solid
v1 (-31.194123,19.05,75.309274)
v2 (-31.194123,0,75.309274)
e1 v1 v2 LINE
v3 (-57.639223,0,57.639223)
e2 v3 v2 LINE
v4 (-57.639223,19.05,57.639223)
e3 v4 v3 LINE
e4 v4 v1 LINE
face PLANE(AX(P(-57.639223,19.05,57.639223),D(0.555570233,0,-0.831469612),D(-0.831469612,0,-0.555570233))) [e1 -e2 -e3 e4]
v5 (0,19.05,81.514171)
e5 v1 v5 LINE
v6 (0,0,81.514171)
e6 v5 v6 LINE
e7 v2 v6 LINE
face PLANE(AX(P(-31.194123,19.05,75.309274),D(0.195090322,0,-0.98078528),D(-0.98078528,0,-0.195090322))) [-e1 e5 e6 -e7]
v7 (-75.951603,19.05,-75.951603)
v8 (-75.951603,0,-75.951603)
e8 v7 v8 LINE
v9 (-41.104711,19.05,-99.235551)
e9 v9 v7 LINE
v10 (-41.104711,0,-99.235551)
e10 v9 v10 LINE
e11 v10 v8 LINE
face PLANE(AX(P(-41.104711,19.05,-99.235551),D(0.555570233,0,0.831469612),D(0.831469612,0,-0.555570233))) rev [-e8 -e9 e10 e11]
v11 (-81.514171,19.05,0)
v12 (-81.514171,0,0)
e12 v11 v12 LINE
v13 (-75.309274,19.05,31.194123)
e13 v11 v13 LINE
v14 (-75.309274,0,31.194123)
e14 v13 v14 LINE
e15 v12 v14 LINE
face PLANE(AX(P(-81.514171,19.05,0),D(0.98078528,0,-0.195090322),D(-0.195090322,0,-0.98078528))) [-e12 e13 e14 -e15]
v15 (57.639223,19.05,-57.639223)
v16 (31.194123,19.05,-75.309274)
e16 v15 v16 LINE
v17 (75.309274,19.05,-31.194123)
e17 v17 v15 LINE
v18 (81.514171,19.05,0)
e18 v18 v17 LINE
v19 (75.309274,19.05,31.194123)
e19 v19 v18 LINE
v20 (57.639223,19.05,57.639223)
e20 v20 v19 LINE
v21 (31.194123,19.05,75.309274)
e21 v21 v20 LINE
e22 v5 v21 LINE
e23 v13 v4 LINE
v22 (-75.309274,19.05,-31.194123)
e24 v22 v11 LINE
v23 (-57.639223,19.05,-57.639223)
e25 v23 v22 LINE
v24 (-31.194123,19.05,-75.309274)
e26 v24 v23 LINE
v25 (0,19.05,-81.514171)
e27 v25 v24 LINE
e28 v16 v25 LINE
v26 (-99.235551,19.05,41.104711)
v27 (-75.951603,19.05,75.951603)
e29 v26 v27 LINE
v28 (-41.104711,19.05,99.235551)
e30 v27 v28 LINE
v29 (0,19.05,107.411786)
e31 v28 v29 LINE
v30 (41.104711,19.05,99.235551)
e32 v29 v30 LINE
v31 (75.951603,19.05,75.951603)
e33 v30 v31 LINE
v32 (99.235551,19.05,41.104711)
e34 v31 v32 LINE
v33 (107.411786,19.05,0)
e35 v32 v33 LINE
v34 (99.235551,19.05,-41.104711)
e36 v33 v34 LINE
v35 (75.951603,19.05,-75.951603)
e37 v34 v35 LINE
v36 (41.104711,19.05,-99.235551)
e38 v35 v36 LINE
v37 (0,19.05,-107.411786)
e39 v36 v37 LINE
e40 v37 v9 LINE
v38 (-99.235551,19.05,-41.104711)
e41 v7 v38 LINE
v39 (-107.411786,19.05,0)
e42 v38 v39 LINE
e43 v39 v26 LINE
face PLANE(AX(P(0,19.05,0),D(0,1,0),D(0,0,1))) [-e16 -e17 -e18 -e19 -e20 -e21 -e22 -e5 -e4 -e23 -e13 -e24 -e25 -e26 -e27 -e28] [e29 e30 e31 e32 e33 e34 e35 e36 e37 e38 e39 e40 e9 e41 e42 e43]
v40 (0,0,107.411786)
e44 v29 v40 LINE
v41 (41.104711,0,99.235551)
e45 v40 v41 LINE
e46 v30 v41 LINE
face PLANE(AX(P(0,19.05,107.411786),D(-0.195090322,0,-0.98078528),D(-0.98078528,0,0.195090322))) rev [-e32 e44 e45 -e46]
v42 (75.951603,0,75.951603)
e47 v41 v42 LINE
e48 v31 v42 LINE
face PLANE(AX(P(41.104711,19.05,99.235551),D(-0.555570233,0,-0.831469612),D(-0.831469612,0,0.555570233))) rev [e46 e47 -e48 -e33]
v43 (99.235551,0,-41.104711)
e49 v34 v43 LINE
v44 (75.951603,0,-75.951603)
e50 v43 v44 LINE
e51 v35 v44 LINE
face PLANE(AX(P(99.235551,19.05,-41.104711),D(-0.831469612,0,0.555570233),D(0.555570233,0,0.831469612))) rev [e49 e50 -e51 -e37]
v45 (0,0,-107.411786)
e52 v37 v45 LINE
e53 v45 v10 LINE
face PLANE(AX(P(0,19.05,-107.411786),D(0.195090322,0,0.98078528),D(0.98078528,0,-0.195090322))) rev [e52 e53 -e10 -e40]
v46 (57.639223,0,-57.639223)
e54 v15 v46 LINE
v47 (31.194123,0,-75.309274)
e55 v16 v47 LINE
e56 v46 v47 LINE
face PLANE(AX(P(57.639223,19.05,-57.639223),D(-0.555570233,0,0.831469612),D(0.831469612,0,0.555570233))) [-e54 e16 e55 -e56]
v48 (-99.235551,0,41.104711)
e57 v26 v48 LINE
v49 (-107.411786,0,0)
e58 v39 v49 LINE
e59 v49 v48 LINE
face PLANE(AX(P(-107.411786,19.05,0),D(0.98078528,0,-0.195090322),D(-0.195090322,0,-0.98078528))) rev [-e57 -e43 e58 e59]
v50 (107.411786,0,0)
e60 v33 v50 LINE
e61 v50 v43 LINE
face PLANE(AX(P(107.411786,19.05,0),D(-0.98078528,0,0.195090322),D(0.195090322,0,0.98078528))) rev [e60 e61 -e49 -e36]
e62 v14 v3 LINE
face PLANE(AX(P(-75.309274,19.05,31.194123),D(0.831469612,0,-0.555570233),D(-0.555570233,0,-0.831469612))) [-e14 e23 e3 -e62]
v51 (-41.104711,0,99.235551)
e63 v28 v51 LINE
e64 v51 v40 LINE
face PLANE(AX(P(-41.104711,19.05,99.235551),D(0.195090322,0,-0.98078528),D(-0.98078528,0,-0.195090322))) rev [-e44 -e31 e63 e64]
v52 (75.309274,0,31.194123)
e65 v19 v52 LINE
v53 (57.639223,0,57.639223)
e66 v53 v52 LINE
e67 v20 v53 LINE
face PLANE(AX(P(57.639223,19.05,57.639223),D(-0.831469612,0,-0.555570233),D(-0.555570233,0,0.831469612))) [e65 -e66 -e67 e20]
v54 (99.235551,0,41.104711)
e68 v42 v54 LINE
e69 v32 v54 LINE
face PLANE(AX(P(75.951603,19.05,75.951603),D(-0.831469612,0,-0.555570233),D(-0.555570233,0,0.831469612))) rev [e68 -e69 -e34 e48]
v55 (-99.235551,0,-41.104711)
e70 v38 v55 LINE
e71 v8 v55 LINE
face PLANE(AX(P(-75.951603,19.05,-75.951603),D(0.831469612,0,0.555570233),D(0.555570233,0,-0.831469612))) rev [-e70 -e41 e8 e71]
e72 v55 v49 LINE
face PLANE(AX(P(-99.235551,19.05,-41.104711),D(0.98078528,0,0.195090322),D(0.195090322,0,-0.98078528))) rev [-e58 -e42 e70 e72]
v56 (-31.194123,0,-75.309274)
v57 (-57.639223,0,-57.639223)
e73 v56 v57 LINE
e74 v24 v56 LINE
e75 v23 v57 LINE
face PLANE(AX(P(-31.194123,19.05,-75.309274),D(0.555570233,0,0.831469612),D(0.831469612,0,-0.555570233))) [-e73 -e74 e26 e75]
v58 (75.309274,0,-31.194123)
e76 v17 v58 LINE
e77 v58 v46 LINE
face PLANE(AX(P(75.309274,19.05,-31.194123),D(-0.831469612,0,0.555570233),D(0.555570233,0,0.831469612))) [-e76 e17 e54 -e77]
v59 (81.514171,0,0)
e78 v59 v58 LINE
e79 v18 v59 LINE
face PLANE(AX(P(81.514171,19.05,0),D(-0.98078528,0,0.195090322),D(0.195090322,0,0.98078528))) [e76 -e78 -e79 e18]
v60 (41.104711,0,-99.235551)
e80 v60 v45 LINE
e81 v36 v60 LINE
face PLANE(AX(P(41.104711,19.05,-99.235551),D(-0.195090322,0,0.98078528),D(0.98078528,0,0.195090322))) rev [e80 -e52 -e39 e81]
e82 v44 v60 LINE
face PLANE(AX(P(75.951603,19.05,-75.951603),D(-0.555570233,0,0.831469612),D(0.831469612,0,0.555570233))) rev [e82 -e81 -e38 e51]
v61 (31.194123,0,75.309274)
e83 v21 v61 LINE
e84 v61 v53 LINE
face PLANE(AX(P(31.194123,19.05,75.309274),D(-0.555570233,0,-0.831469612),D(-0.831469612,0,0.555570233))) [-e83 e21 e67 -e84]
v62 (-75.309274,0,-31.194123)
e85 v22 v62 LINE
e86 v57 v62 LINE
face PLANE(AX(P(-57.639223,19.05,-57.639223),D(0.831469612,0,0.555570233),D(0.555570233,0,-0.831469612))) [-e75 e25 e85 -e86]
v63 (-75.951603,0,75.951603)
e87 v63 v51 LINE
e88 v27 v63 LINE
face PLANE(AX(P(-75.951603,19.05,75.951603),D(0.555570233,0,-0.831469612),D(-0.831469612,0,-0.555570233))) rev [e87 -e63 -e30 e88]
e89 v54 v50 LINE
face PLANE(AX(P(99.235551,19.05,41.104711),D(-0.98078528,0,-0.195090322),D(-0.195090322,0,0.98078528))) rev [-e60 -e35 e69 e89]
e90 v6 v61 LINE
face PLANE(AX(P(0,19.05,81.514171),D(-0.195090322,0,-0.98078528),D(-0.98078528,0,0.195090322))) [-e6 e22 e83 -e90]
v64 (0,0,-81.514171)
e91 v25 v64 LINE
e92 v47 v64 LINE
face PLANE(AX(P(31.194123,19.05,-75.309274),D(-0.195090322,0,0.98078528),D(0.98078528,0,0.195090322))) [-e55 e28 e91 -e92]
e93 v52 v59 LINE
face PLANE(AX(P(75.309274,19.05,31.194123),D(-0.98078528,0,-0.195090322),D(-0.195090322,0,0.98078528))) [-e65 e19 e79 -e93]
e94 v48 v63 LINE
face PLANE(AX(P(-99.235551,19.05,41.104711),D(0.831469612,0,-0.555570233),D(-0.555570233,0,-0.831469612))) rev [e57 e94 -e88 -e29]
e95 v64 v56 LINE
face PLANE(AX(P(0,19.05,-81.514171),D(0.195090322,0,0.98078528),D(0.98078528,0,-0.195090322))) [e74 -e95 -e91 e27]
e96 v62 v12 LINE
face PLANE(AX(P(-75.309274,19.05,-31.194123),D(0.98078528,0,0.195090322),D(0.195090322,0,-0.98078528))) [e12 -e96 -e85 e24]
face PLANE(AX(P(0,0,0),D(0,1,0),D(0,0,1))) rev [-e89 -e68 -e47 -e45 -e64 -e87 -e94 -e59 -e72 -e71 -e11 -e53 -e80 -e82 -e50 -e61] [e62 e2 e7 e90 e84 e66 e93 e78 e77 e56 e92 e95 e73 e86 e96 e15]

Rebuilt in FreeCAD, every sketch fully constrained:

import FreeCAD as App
import Part
import Sketcher
Q = App.Units.Quantity


def add_polygon(sketch, points):
    """Adds a closed chain of lines whose ends are joined by coincident constraints."""
    first, n = sketch.GeometryCount, len(points)
    for a, b in zip(points, points[1:] + points[:1]):
        sketch.addGeometry(Part.LineSegment(App.Vector(*a, 0), App.Vector(*b, 0)), False)
    for i in range(n):
        sketch.addConstraint(Sketcher.Constraint("Coincident", first + i, 2, first + (i + 1) % n, 1))

doc = App.newDocument("Part")
body = doc.addObject("PartDesign::Body", "Body")

sketch1 = body.newObject("Sketcher::SketchObject", "Sketch")
sketch1.AttachmentSupport = (doc.getObject("XZ_Plane"), [""])
sketch1.MapMode = "FlatFace"
add_polygon(sketch1, [(107, 0), (99, -41), (76, -76), (41, -99), (0, -107), (-41, -99), (-76, -76), (-99, -41), (-107, 0), (-99, 41), (-76, 76), (-41, 99), (0, 107), (41, 99), (76, 76), (99, 41)])
add_polygon(sketch1, [(75, -31), (82, 0), (75, 31), (58, 58), (31, 75), (0, 82), (-31, 75), (-58, 58), (-75, 31), (-82, 0), (-75, -31), (-58, -58), (-31, -75), (0, -82), (31, -75), (58, -58)])
sketch1.addConstraint(Sketcher.Constraint("Symmetric", 0, 2, 8, 2, -1, 1))
sketch1.addConstraint(Sketcher.Constraint("Symmetric", 1, 2, 9, 2, -1, 1))
sketch1.addConstraint(Sketcher.Constraint("Symmetric", 2, 2, 10, 2, -1, 1))
sketch1.addConstraint(Sketcher.Constraint("Symmetric", 3, 2, 11, 2, -1, 1))
sketch1.addConstraint(Sketcher.Constraint("Symmetric", 4, 2, 12, 2, -1, 1))
sketch1.addConstraint(Sketcher.Constraint("Symmetric", 5, 2, 13, 2, -1, 1))
sketch1.addConstraint(Sketcher.Constraint("Symmetric", 6, 2, 14, 2, -1, 1))
sketch1.addConstraint(Sketcher.Constraint("Symmetric", 7, 2, 15, 2, -1, 1))
sketch1.addConstraint(Sketcher.Constraint("Symmetric", 16, 2, 24, 2, -1, 1))
sketch1.addConstraint(Sketcher.Constraint("Symmetric", 17, 2, 25, 2, -1, 1))
sketch1.addConstraint(Sketcher.Constraint("Symmetric", 18, 2, 26, 2, -1, 1))
sketch1.addConstraint(Sketcher.Constraint("Symmetric", 19, 2, 27, 2, -1, 1))
sketch1.addConstraint(Sketcher.Constraint("Symmetric", 20, 2, 28, 2, -1, 1))
sketch1.addConstraint(Sketcher.Constraint("Symmetric", 21, 2, 29, 2, -1, 1))
sketch1.addConstraint(Sketcher.Constraint("Symmetric", 22, 2, 30, 2, -1, 1))
sketch1.addConstraint(Sketcher.Constraint("Symmetric", 23, 2, 31, 2, -1, 1))
sketch1.addConstraint(Sketcher.Constraint("Symmetric", 2, 2, 4, 2, -2))
sketch1.addConstraint(Sketcher.Constraint("Symmetric", 1, 2, 5, 2, -2))
sketch1.addConstraint(Sketcher.Constraint("Symmetric", 0, 2, 6, 2, -2))
sketch1.addConstraint(Sketcher.Constraint("Symmetric", 19, 2, 21, 2, -2))
sketch1.addConstraint(Sketcher.Constraint("Symmetric", 18, 2, 22, 2, -2))
sketch1.addConstraint(Sketcher.Constraint("Symmetric", 17, 2, 23, 2, -2))
sketch1.addConstraint(Sketcher.Constraint("PointOnObject", 3, 2, -2))
sketch1.addConstraint(Sketcher.Constraint("PointOnObject", 7, 2, -1))
sketch1.addConstraint(Sketcher.Constraint("PointOnObject", 16, 2, -1))
sketch1.addConstraint(Sketcher.Constraint("PointOnObject", 20, 2, -2))
sketch1.addConstraint(Sketcher.Constraint("Perpendicular", 0, 4))
sketch1.addConstraint(Sketcher.Constraint("Perpendicular", 1, 5))
sketch1.addConstraint(Sketcher.Constraint("Perpendicular", 12, 16))
sketch1.addConstraint(Sketcher.Constraint("Parallel", 14, 18))
sketch1.addConstraint(Sketcher.Constraint("Parallel", 13, 19))
sketch1.addConstraint(Sketcher.Constraint("Perpendicular", 16, 20))
sketch1.addConstraint(Sketcher.Constraint("Equal", 0, 1))
sketch1.addConstraint(Sketcher.Constraint("Equal", 1, 2))
sketch1.addConstraint(Sketcher.Constraint("Equal", 2, 3))
sketch1.addConstraint(Sketcher.Constraint("Equal", 17, 18))
sketch1.addConstraint(Sketcher.Constraint("Equal", 18, 19))
sketch1.addConstraint(Sketcher.Constraint("Equal", 19, 20))
sketch1.addConstraint(Sketcher.Constraint("Distance", 0, Q("1.65 in")))
sketch1.addConstraint(Sketcher.Constraint("Angle", 0, Q("-101.25 deg")))
sketch1.addConstraint(Sketcher.Constraint("Angle", 1, Q("-123.75 deg")))
sketch1.addConstraint(Sketcher.Constraint("DistanceY", 17, 2, 18, 2, Q("26.4451 mm")))
pad1 = body.newObject("PartDesign::Pad", "Pad")
pad1.Profile = sketch1
pad1.Length = Q("0.75 in")
pad1.Reversed = True

doc.recompute()
